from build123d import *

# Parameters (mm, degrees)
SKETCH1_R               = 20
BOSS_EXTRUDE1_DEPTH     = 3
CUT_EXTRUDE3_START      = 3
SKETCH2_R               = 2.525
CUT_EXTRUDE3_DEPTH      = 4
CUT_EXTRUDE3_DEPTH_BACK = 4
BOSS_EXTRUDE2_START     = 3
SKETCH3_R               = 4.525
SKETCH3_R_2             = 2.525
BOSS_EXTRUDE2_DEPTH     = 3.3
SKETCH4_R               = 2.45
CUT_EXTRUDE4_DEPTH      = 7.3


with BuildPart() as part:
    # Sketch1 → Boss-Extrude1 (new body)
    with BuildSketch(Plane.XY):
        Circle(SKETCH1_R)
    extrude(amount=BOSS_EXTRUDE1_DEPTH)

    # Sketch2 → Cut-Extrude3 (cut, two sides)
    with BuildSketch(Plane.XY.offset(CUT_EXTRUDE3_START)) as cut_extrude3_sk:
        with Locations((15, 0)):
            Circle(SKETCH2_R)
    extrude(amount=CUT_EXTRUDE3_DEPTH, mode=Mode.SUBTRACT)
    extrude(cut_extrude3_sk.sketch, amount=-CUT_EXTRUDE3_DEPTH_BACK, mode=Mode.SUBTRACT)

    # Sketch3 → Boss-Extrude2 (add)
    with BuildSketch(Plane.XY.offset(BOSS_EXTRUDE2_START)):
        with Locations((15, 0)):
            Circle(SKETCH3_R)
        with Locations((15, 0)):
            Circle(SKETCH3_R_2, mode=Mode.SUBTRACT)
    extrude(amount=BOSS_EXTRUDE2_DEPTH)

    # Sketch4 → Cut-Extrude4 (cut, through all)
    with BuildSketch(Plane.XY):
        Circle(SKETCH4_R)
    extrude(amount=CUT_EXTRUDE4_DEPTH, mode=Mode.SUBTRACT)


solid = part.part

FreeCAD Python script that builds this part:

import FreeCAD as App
import Part
import Sketcher
Q = App.Units.Quantity

doc = App.newDocument("Part")
body = doc.addObject("PartDesign::Body", "Body")

sketch1 = body.newObject("Sketcher::SketchObject", "Sketch")
sketch1.AttachmentSupport = (doc.getObject("XY_Plane"), [""])
sketch1.MapMode = "FlatFace"
sketch1.addGeometry(Part.Circle(App.Vector(0, 0, 0), App.Vector(0, 0, 1), 20), False)
sketch1.addConstraint(Sketcher.Constraint("Coincident", 0, 3, -1, 1))
sketch1.addConstraint(Sketcher.Constraint("Diameter", 0, Q("40 mm")))
pad1 = body.newObject("PartDesign::Pad", "Pad")
pad1.Profile = sketch1
pad1.Length = 3

sketch2 = body.newObject("Sketcher::SketchObject", "Sketch001")
sketch2.AttachmentSupport = (doc.getObject("XY_Plane"), [""])
sketch2.MapMode = "FlatFace"
sketch2.AttachmentOffset = App.Placement(App.Vector(0, 0, 3), App.Rotation())
sketch2.addGeometry(Part.Circle(App.Vector(15, 0, 0), App.Vector(0, 0, 1), 2.525), False)
sketch2.addConstraint(Sketcher.Constraint("PointOnObject", 0, 3, -1))
sketch2.addConstraint(Sketcher.Constraint("Diameter", 0, Q("5.05 mm")))
sketch2.addConstraint(Sketcher.Constraint("DistanceX", -1, 1, 0, 3, Q("15 mm")))
pocket1 = body.newObject("PartDesign::Pocket", "Pocket")
pocket1.Profile = sketch2
pocket1.Type = "ThroughAll"
pocket1.Midplane = True

sketch3 = body.newObject("Sketcher::SketchObject", "Sketch002")
sketch3.AttachmentSupport = (doc.getObject("XY_Plane"), [""])
sketch3.MapMode = "FlatFace"
sketch3.AttachmentOffset = App.Placement(App.Vector(0, 0, 3), App.Rotation())
sketch3.addGeometry(Part.Circle(App.Vector(15, 0, 0), App.Vector(0, 0, 1), 4.525), False)
sketch3.addGeometry(Part.Circle(App.Vector(15, 0, 0), App.Vector(0, 0, 1), 2.525), False)
sketch3.addConstraint(Sketcher.Constraint("Coincident", 1, 3, 0, 3))
sketch3.addConstraint(Sketcher.Constraint("PointOnObject", 0, 3, -1))
sketch3.addConstraint(Sketcher.Constraint("Diameter", 0, Q("9.05 mm")))
sketch3.addConstraint(Sketcher.Constraint("Diameter", 1, Q("5.05 mm")))
sketch3.addConstraint(Sketcher.Constraint("DistanceX", -1, 1, 0, 3, Q("15 mm")))
pad2 = body.newObject("PartDesign::Pad", "Pad001")
pad2.Profile = sketch3
pad2.Length = 3.3

sketch4 = body.newObject("Sketcher::SketchObject", "Sketch003")
sketch4.AttachmentSupport = (doc.getObject("XY_Plane"), [""])
sketch4.MapMode = "FlatFace"
sketch4.addGeometry(Part.Circle(App.Vector(0, 0, 0), App.Vector(0, 0, 1), 2.45), False)
sketch4.addConstraint(Sketcher.Constraint("Coincident", 0, 3, -1, 1))
sketch4.addConstraint(Sketcher.Constraint("Diameter", 0, Q("4.9 mm")))
pocket2 = body.newObject("PartDesign::Pocket", "Pocket001")
pocket2.Profile = sketch4
pocket2.Type = "ThroughAll"
pocket2.Reversed = True

doc.recompute()
